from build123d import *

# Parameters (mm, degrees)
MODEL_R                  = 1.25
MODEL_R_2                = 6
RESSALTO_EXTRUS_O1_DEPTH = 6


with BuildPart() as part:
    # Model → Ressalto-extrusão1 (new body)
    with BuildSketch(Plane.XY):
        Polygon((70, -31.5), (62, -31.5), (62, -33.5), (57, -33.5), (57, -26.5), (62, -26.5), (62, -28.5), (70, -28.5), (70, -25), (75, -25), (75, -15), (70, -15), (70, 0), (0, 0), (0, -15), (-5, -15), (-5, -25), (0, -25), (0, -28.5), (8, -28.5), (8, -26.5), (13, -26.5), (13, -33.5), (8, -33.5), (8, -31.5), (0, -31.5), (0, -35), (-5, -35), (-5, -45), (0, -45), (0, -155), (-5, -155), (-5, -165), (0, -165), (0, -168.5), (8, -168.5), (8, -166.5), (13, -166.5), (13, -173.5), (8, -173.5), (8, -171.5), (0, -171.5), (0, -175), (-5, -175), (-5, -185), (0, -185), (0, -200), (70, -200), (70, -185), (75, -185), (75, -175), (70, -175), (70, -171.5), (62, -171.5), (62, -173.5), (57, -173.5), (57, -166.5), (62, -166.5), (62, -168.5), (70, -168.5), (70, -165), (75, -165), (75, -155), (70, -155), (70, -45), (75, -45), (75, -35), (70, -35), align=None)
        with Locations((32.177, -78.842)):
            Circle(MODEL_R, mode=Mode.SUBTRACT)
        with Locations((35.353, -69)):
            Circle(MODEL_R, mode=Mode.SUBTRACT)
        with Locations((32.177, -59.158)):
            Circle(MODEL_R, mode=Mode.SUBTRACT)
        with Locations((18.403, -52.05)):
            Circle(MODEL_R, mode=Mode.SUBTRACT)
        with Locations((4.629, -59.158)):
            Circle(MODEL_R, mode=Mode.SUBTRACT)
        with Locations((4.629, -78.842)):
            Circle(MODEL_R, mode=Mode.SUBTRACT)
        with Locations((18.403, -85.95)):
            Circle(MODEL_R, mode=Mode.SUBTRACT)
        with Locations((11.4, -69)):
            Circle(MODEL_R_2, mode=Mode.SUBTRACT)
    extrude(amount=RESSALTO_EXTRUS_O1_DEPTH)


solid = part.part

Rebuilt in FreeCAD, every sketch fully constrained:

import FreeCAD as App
import Part
import Sketcher
from FreeCAD import Vector
Q = App.Units.Quantity

doc = App.newDocument("Part")
body = doc.addObject("PartDesign::Body", "Body")

sketch1 = doc.addObject("Sketcher::SketchObject", "Sketch")
body.addObject(sketch1)
sketch1.AttachmentSupport = (doc.XY_Plane, [""])
sketch1.MapMode = "FlatFace"
sketch1.addGeometry(Part.LineSegment(Vector(70, -31.5, 0), Vector(62, -31.5, 0)), False)
sketch1.addGeometry(Part.LineSegment(Vector(62, -31.5, 0), Vector(62, -33.5, 0)), False)
sketch1.addGeometry(Part.LineSegment(Vector(62, -33.5, 0), Vector(57, -33.5, 0)), False)
sketch1.addGeometry(Part.LineSegment(Vector(57, -33.5, 0), Vector(57, -26.5, 0)), False)
sketch1.addGeometry(Part.LineSegment(Vector(57, -26.5, 0), Vector(62, -26.5, 0)), False)
sketch1.addGeometry(Part.LineSegment(Vector(62, -26.5, 0), Vector(62, -28.5, 0)), False)
sketch1.addGeometry(Part.LineSegment(Vector(62, -28.5, 0), Vector(70, -28.5, 0)), False)
sketch1.addGeometry(Part.LineSegment(Vector(70, -28.5, 0), Vector(70, -25, 0)), False)
sketch1.addGeometry(Part.LineSegment(Vector(70, -25, 0), Vector(75, -25, 0)), False)
sketch1.addGeometry(Part.LineSegment(Vector(75, -25, 0), Vector(75, -15, 0)), False)
sketch1.addGeometry(Part.LineSegment(Vector(75, -15, 0), Vector(70, -15, 0)), False)
sketch1.addGeometry(Part.LineSegment(Vector(70, -15, 0), Vector(70, 0, 0)), False)
sketch1.addGeometry(Part.LineSegment(Vector(70, 0, 0), Vector(0, 0, 0)), False)
sketch1.addGeometry(Part.LineSegment(Vector(0, 0, 0), Vector(0, -15, 0)), False)
sketch1.addGeometry(Part.LineSegment(Vector(0, -15, 0), Vector(-5, -15, 0)), False)
sketch1.addGeometry(Part.LineSegment(Vector(-5, -15, 0), Vector(-5, -25, 0)), False)
sketch1.addGeometry(Part.LineSegment(Vector(-5, -25, 0), Vector(0, -25, 0)), False)
sketch1.addGeometry(Part.LineSegment(Vector(0, -25, 0), Vector(0, -28.5, 0)), False)
sketch1.addGeometry(Part.LineSegment(Vector(0, -28.5, 0), Vector(8, -28.5, 0)), False)
sketch1.addGeometry(Part.LineSegment(Vector(8, -28.5, 0), Vector(8, -26.5, 0)), False)
sketch1.addGeometry(Part.LineSegment(Vector(8, -26.5, 0), Vector(13, -26.5, 0)), False)
sketch1.addGeometry(Part.LineSegment(Vector(13, -26.5, 0), Vector(13, -33.5, 0)), False)
sketch1.addGeometry(Part.LineSegment(Vector(13, -33.5, 0), Vector(8, -33.5, 0)), False)
sketch1.addGeometry(Part.LineSegment(Vector(8, -33.5, 0), Vector(8, -31.5, 0)), False)
sketch1.addGeometry(Part.LineSegment(Vector(8, -31.5, 0), Vector(0, -31.5, 0)), False)
sketch1.addGeometry(Part.LineSegment(Vector(0, -31.5, 0), Vector(0, -35, 0)), False)
sketch1.addGeometry(Part.LineSegment(Vector(0, -35, 0), Vector(-5, -35, 0)), False)
sketch1.addGeometry(Part.LineSegment(Vector(-5, -35, 0), Vector(-5, -45, 0)), False)
sketch1.addGeometry(Part.LineSegment(Vector(-5, -45, 0), Vector(0, -45, 0)), False)
sketch1.addGeometry(Part.LineSegment(Vector(0, -45, 0), Vector(0, -155, 0)), False)
sketch1.addGeometry(Part.LineSegment(Vector(0, -155, 0), Vector(-5, -155, 0)), False)
sketch1.addGeometry(Part.LineSegment(Vector(-5, -155, 0), Vector(-5, -165, 0)), False)
sketch1.addGeometry(Part.LineSegment(Vector(-5, -165, 0), Vector(0, -165, 0)), False)
sketch1.addGeometry(Part.LineSegment(Vector(0, -165, 0), Vector(0, -168.5, 0)), False)
sketch1.addGeometry(Part.LineSegment(Vector(0, -168.5, 0), Vector(8, -168.5, 0)), False)
sketch1.addGeometry(Part.LineSegment(Vector(8, -168.5, 0), Vector(8, -166.5, 0)), False)
sketch1.addGeometry(Part.LineSegment(Vector(8, -166.5, 0), Vector(13, -166.5, 0)), False)
sketch1.addGeometry(Part.LineSegment(Vector(13, -166.5, 0), Vector(13, -173.5, 0)), False)
sketch1.addGeometry(Part.LineSegment(Vector(13, -173.5, 0), Vector(8, -173.5, 0)), False)
sketch1.addGeometry(Part.LineSegment(Vector(8, -173.5, 0), Vector(8, -171.5, 0)), False)
sketch1.addGeometry(Part.LineSegment(Vector(8, -171.5, 0), Vector(0, -171.5, 0)), False)
sketch1.addGeometry(Part.LineSegment(Vector(0, -171.5, 0), Vector(0, -175, 0)), False)
sketch1.addGeometry(Part.LineSegment(Vector(0, -175, 0), Vector(-5, -175, 0)), False)
sketch1.addGeometry(Part.LineSegment(Vector(-5, -175, 0), Vector(-5, -185, 0)), False)
sketch1.addGeometry(Part.LineSegment(Vector(-5, -185, 0), Vector(0, -185, 0)), False)
sketch1.addGeometry(Part.LineSegment(Vector(0, -185, 0), Vector(0, -200, 0)), False)
sketch1.addGeometry(Part.LineSegment(Vector(0, -200, 0), Vector(70, -200, 0)), False)
sketch1.addGeometry(Part.LineSegment(Vector(70, -200, 0), Vector(70, -185, 0)), False)
sketch1.addGeometry(Part.LineSegment(Vector(70, -185, 0), Vector(75, -185, 0)), False)
sketch1.addGeometry(Part.LineSegment(Vector(75, -185, 0), Vector(75, -175, 0)), False)
sketch1.addGeometry(Part.LineSegment(Vector(75, -175, 0), Vector(70, -175, 0)), False)
sketch1.addGeometry(Part.LineSegment(Vector(70, -175, 0), Vector(70, -171.5, 0)), False)
sketch1.addGeometry(Part.LineSegment(Vector(70, -171.5, 0), Vector(62, -171.5, 0)), False)
sketch1.addGeometry(Part.LineSegment(Vector(62, -171.5, 0), Vector(62, -173.5, 0)), False)
sketch1.addGeometry(Part.LineSegment(Vector(62, -173.5, 0), Vector(57, -173.5, 0)), False)
sketch1.addGeometry(Part.LineSegment(Vector(57, -173.5, 0), Vector(57, -166.5, 0)), False)
sketch1.addGeometry(Part.LineSegment(Vector(57, -166.5, 0), Vector(62, -166.5, 0)), False)
sketch1.addGeometry(Part.LineSegment(Vector(62, -166.5, 0), Vector(62, -168.5, 0)), False)
sketch1.addGeometry(Part.LineSegment(Vector(62, -168.5, 0), Vector(70, -168.5, 0)), False)
sketch1.addGeometry(Part.LineSegment(Vector(70, -168.5, 0), Vector(70, -165, 0)), False)
sketch1.addGeometry(Part.LineSegment(Vector(70, -165, 0), Vector(75, -165, 0)), False)
sketch1.addGeometry(Part.LineSegment(Vector(75, -165, 0), Vector(75, -155, 0)), False)
sketch1.addGeometry(Part.LineSegment(Vector(75, -155, 0), Vector(70, -155, 0)), False)
sketch1.addGeometry(Part.LineSegment(Vector(70, -155, 0), Vector(70, -45, 0)), False)
sketch1.addGeometry(Part.LineSegment(Vector(70, -45, 0), Vector(75, -45, 0)), False)
sketch1.addGeometry(Part.LineSegment(Vector(75, -45, 0), Vector(75, -35, 0)), False)
sketch1.addGeometry(Part.LineSegment(Vector(75, -35, 0), Vector(70, -35, 0)), False)
sketch1.addGeometry(Part.LineSegment(Vector(70, -35, 0), Vector(70, -31.5, 0)), False)
sketch1.addGeometry(Part.Circle(Vector(4.6, -78.8, 0), Vector(0, 0, 1), 1.2), False)
sketch1.addGeometry(Part.Circle(Vector(18.4, -86, 0), Vector(0, 0, 1), 1.2), False)
sketch1.addGeometry(Part.Circle(Vector(32.2, -78.8, 0), Vector(0, 0, 1), 1.2), False)
sketch1.addGeometry(Part.Circle(Vector(11.4, -69, 0), Vector(0, 0, 1), 6), False)
sketch1.addGeometry(Part.Circle(Vector(4.6, -59.2, 0), Vector(0, 0, 1), 1.2), False)
sketch1.addGeometry(Part.Circle(Vector(18.4, -52, 0), Vector(0, 0, 1), 1.2), False)
sketch1.addGeometry(Part.Circle(Vector(35.4, -69, 0), Vector(0, 0, 1), 1.2), False)
sketch1.addGeometry(Part.Circle(Vector(32.2, -59.2, 0), Vector(0, 0, 1), 1.2), False)
sketch1.addConstraint(Sketcher.Constraint("Coincident", 0, 2, 1, 1))
sketch1.addConstraint(Sketcher.Constraint("Coincident", 1, 2, 2, 1))
sketch1.addConstraint(Sketcher.Constraint("Coincident", 2, 2, 3, 1))
sketch1.addConstraint(Sketcher.Constraint("Coincident", 3, 2, 4, 1))
sketch1.addConstraint(Sketcher.Constraint("Coincident", 4, 2, 5, 1))
sketch1.addConstraint(Sketcher.Constraint("Coincident", 5, 2, 6, 1))
sketch1.addConstraint(Sketcher.Constraint("Coincident", 6, 2, 7, 1))
sketch1.addConstraint(Sketcher.Constraint("Coincident", 7, 2, 8, 1))
sketch1.addConstraint(Sketcher.Constraint("Coincident", 8, 2, 9, 1))
sketch1.addConstraint(Sketcher.Constraint("Coincident", 9, 2, 10, 1))
sketch1.addConstraint(Sketcher.Constraint("Coincident", 10, 2, 11, 1))
sketch1.addConstraint(Sketcher.Constraint("Coincident", 11, 2, 12, 1))
sketch1.addConstraint(Sketcher.Constraint("Coincident", 12, 2, 13, 1))
sketch1.addConstraint(Sketcher.Constraint("Coincident", 13, 2, 14, 1))
sketch1.addConstraint(Sketcher.Constraint("Coincident", 14, 2, 15, 1))
sketch1.addConstraint(Sketcher.Constraint("Coincident", 15, 2, 16, 1))
sketch1.addConstraint(Sketcher.Constraint("Coincident", 16, 2, 17, 1))
sketch1.addConstraint(Sketcher.Constraint("Coincident", 17, 2, 18, 1))
sketch1.addConstraint(Sketcher.Constraint("Coincident", 18, 2, 19, 1))
sketch1.addConstraint(Sketcher.Constraint("Coincident", 19, 2, 20, 1))
sketch1.addConstraint(Sketcher.Constraint("Coincident", 20, 2, 21, 1))
sketch1.addConstraint(Sketcher.Constraint("Coincident", 21, 2, 22, 1))
sketch1.addConstraint(Sketcher.Constraint("Coincident", 22, 2, 23, 1))
sketch1.addConstraint(Sketcher.Constraint("Coincident", 23, 2, 24, 1))
sketch1.addConstraint(Sketcher.Constraint("Coincident", 24, 2, 25, 1))
sketch1.addConstraint(Sketcher.Constraint("Coincident", 25, 2, 26, 1))
sketch1.addConstraint(Sketcher.Constraint("Coincident", 26, 2, 27, 1))
sketch1.addConstraint(Sketcher.Constraint("Coincident", 27, 2, 28, 1))
sketch1.addConstraint(Sketcher.Constraint("Coincident", 28, 2, 29, 1))
sketch1.addConstraint(Sketcher.Constraint("Coincident", 29, 2, 30, 1))
sketch1.addConstraint(Sketcher.Constraint("Coincident", 30, 2, 31, 1))
sketch1.addConstraint(Sketcher.Constraint("Coincident", 31, 2, 32, 1))
sketch1.addConstraint(Sketcher.Constraint("Coincident", 32, 2, 33, 1))
sketch1.addConstraint(Sketcher.Constraint("Coincident", 33, 2, 34, 1))
sketch1.addConstraint(Sketcher.Constraint("Coincident", 34, 2, 35, 1))
sketch1.addConstraint(Sketcher.Constraint("Coincident", 35, 2, 36, 1))
sketch1.addConstraint(Sketcher.Constraint("Coincident", 36, 2, 37, 1))
sketch1.addConstraint(Sketcher.Constraint("Coincident", 37, 2, 38, 1))
sketch1.addConstraint(Sketcher.Constraint("Coincident", 38, 2, 39, 1))
sketch1.addConstraint(Sketcher.Constraint("Coincident", 39, 2, 40, 1))
sketch1.addConstraint(Sketcher.Constraint("Coincident", 40, 2, 41, 1))
sketch1.addConstraint(Sketcher.Constraint("Coincident", 41, 2, 42, 1))
sketch1.addConstraint(Sketcher.Constraint("Coincident", 42, 2, 43, 1))
sketch1.addConstraint(Sketcher.Constraint("Coincident", 43, 2, 44, 1))
sketch1.addConstraint(Sketcher.Constraint("Coincident", 44, 2, 45, 1))
sketch1.addConstraint(Sketcher.Constraint("Coincident", 45, 2, 46, 1))
sketch1.addConstraint(Sketcher.Constraint("Coincident", 46, 2, 47, 1))
sketch1.addConstraint(Sketcher.Constraint("Coincident", 47, 2, 48, 1))
sketch1.addConstraint(Sketcher.Constraint("Coincident", 48, 2, 49, 1))
sketch1.addConstraint(Sketcher.Constraint("Coincident", 49, 2, 50, 1))
sketch1.addConstraint(Sketcher.Constraint("Coincident", 50, 2, 51, 1))
sketch1.addConstraint(Sketcher.Constraint("Coincident", 51, 2, 52, 1))
sketch1.addConstraint(Sketcher.Constraint("Coincident", 52, 2, 53, 1))
sketch1.addConstraint(Sketcher.Constraint("Coincident", 53, 2, 54, 1))
sketch1.addConstraint(Sketcher.Constraint("Coincident", 54, 2, 55, 1))
sketch1.addConstraint(Sketcher.Constraint("Coincident", 55, 2, 56, 1))
sketch1.addConstraint(Sketcher.Constraint("Coincident", 56, 2, 57, 1))
sketch1.addConstraint(Sketcher.Constraint("Coincident", 57, 2, 58, 1))
sketch1.addConstraint(Sketcher.Constraint("Coincident", 58, 2, 59, 1))
sketch1.addConstraint(Sketcher.Constraint("Coincident", 59, 2, 60, 1))
sketch1.addConstraint(Sketcher.Constraint("Coincident", 60, 2, 61, 1))
sketch1.addConstraint(Sketcher.Constraint("Coincident", 61, 2, 62, 1))
sketch1.addConstraint(Sketcher.Constraint("Coincident", 62, 2, 63, 1))
sketch1.addConstraint(Sketcher.Constraint("Coincident", 63, 2, 64, 1))
sketch1.addConstraint(Sketcher.Constraint("Coincident", 64, 2, 65, 1))
sketch1.addConstraint(Sketcher.Constraint("Coincident", 65, 2, 66, 1))
sketch1.addConstraint(Sketcher.Constraint("Coincident", 66, 2, 67, 1))
sketch1.addConstraint(Sketcher.Constraint("Coincident", 67, 2, 0, 1))
sketch1.addConstraint(Sketcher.Constraint("Horizontal", 0))
sketch1.addConstraint(Sketcher.Constraint("Vertical", 1))
sketch1.addConstraint(Sketcher.Constraint("Horizontal", 2))
sketch1.addConstraint(Sketcher.Constraint("Vertical", 3))
sketch1.addConstraint(Sketcher.Constraint("Horizontal", 4))
sketch1.addConstraint(Sketcher.Constraint("Vertical", 5))
sketch1.addConstraint(Sketcher.Constraint("Horizontal", 6))
sketch1.addConstraint(Sketcher.Constraint("Vertical", 7))
sketch1.addConstraint(Sketcher.Constraint("Horizontal", 8))
sketch1.addConstraint(Sketcher.Constraint("Vertical", 9))
sketch1.addConstraint(Sketcher.Constraint("Horizontal", 10))
sketch1.addConstraint(Sketcher.Constraint("Vertical", 11))
sketch1.addConstraint(Sketcher.Constraint("Horizontal", 12))
sketch1.addConstraint(Sketcher.Constraint("Vertical", 13))
sketch1.addConstraint(Sketcher.Constraint("Horizontal", 14))
sketch1.addConstraint(Sketcher.Constraint("Vertical", 15))
sketch1.addConstraint(Sketcher.Constraint("Horizontal", 16))
sketch1.addConstraint(Sketcher.Constraint("Vertical", 17))
sketch1.addConstraint(Sketcher.Constraint("Horizontal", 18))
sketch1.addConstraint(Sketcher.Constraint("Vertical", 19))
sketch1.addConstraint(Sketcher.Constraint("Horizontal", 20))
sketch1.addConstraint(Sketcher.Constraint("Vertical", 21))
sketch1.addConstraint(Sketcher.Constraint("Horizontal", 22))
sketch1.addConstraint(Sketcher.Constraint("Vertical", 23))
sketch1.addConstraint(Sketcher.Constraint("Horizontal", 24))
sketch1.addConstraint(Sketcher.Constraint("Vertical", 25))
sketch1.addConstraint(Sketcher.Constraint("Horizontal", 26))
sketch1.addConstraint(Sketcher.Constraint("Vertical", 27))
sketch1.addConstraint(Sketcher.Constraint("Horizontal", 28))
sketch1.addConstraint(Sketcher.Constraint("Vertical", 29))
sketch1.addConstraint(Sketcher.Constraint("Horizontal", 30))
sketch1.addConstraint(Sketcher.Constraint("Vertical", 31))
sketch1.addConstraint(Sketcher.Constraint("Horizontal", 32))
sketch1.addConstraint(Sketcher.Constraint("Vertical", 33))
sketch1.addConstraint(Sketcher.Constraint("Horizontal", 34))
sketch1.addConstraint(Sketcher.Constraint("Vertical", 35))
sketch1.addConstraint(Sketcher.Constraint("Horizontal", 36))
sketch1.addConstraint(Sketcher.Constraint("Vertical", 37))
sketch1.addConstraint(Sketcher.Constraint("Horizontal", 38))
sketch1.addConstraint(Sketcher.Constraint("Vertical", 39))
sketch1.addConstraint(Sketcher.Constraint("Horizontal", 40))
sketch1.addConstraint(Sketcher.Constraint("Vertical", 41))
sketch1.addConstraint(Sketcher.Constraint("Horizontal", 42))
sketch1.addConstraint(Sketcher.Constraint("Vertical", 43))
sketch1.addConstraint(Sketcher.Constraint("Horizontal", 44))
sketch1.addConstraint(Sketcher.Constraint("Vertical", 45))
sketch1.addConstraint(Sketcher.Constraint("Horizontal", 46))
sketch1.addConstraint(Sketcher.Constraint("Vertical", 47))
sketch1.addConstraint(Sketcher.Constraint("Horizontal", 48))
sketch1.addConstraint(Sketcher.Constraint("Vertical", 49))
sketch1.addConstraint(Sketcher.Constraint("Horizontal", 50))
sketch1.addConstraint(Sketcher.Constraint("Vertical", 51))
sketch1.addConstraint(Sketcher.Constraint("Horizontal", 52))
sketch1.addConstraint(Sketcher.Constraint("Vertical", 53))
sketch1.addConstraint(Sketcher.Constraint("Horizontal", 54))
sketch1.addConstraint(Sketcher.Constraint("Vertical", 55))
sketch1.addConstraint(Sketcher.Constraint("Horizontal", 56))
sketch1.addConstraint(Sketcher.Constraint("Vertical", 57))
sketch1.addConstraint(Sketcher.Constraint("Horizontal", 58))
sketch1.addConstraint(Sketcher.Constraint("Vertical", 59))
sketch1.addConstraint(Sketcher.Constraint("Horizontal", 60))
sketch1.addConstraint(Sketcher.Constraint("Vertical", 61))
sketch1.addConstraint(Sketcher.Constraint("Horizontal", 62))
sketch1.addConstraint(Sketcher.Constraint("Vertical", 63))
sketch1.addConstraint(Sketcher.Constraint("Horizontal", 64))
sketch1.addConstraint(Sketcher.Constraint("Vertical", 65))
sketch1.addConstraint(Sketcher.Constraint("Horizontal", 66))
sketch1.addConstraint(Sketcher.Constraint("Vertical", 67))
sketch1.addConstraint(Sketcher.Constraint("Coincident", 12, 2, -1, 1))
sketch1.addConstraint(Sketcher.Constraint("Equal", 68, 69))
sketch1.addConstraint(Sketcher.Constraint("Equal", 69, 70))
sketch1.addConstraint(Sketcher.Constraint("Equal", 70, 72))
sketch1.addConstraint(Sketcher.Constraint("Equal", 72, 73))
sketch1.addConstraint(Sketcher.Constraint("Equal", 73, 74))
sketch1.addConstraint(Sketcher.Constraint("Equal", 74, 75))
sketch1.addConstraint(Sketcher.Constraint("PointOnObject", 16, 2, -2))
sketch1.addConstraint(Sketcher.Constraint("PointOnObject", 24, 2, -2))
sketch1.addConstraint(Sketcher.Constraint("PointOnObject", 28, 2, -2))
sketch1.addConstraint(Sketcher.Constraint("PointOnObject", 32, 2, -2))
sketch1.addConstraint(Sketcher.Constraint("PointOnObject", 40, 2, -2))
sketch1.addConstraint(Sketcher.Constraint("PointOnObject", 44, 2, -2))
sketch1.addConstraint(Sketcher.Constraint("Horizontal", 68, 3, 70, 3))
sketch1.addConstraint(Sketcher.Constraint("Horizontal", 71, 3, 74, 3))
sketch1.addConstraint(Sketcher.Constraint("Horizontal", 72, 3, 75, 3))
sketch1.addConstraint(Sketcher.Constraint("Horizontal", 10, 2, 13, 2))
sketch1.addConstraint(Sketcher.Constraint("Horizontal", 8, 2, 15, 2))
sketch1.addConstraint(Sketcher.Constraint("Horizontal", 6, 2, 17, 2))
sketch1.addConstraint(Sketcher.Constraint("Horizontal", 4, 2, 19, 2))
sketch1.addConstraint(Sketcher.Constraint("Horizontal", 2, 2, 21, 2))
sketch1.addConstraint(Sketcher.Constraint("Horizontal", 0, 2, 23, 2))
sketch1.addConstraint(Sketcher.Constraint("Horizontal", 44, 2, 47, 2))
sketch1.addConstraint(Sketcher.Constraint("Horizontal", 42, 2, 49, 2))
sketch1.addConstraint(Sketcher.Constraint("Horizontal", 40, 2, 51, 2))
sketch1.addConstraint(Sketcher.Constraint("Horizontal", 38, 2, 53, 2))
sketch1.addConstraint(Sketcher.Constraint("Horizontal", 36, 2, 55, 2))
sketch1.addConstraint(Sketcher.Constraint("Horizontal", 34, 2, 57, 2))
sketch1.addConstraint(Sketcher.Constraint("Horizontal", 32, 2, 59, 2))
sketch1.addConstraint(Sketcher.Constraint("Horizontal", 30, 2, 61, 2))
sketch1.addConstraint(Sketcher.Constraint("Horizontal", 28, 2, 63, 2))
sketch1.addConstraint(Sketcher.Constraint("Horizontal", 26, 2, 65, 2))
sketch1.addConstraint(Sketcher.Constraint("Vertical", 68, 3, 72, 3))
sketch1.addConstraint(Sketcher.Constraint("Vertical", 69, 3, 73, 3))
sketch1.addConstraint(Sketcher.Constraint("Vertical", 70, 3, 75, 3))
sketch1.addConstraint(Sketcher.Constraint("Vertical", 1, 2, 4, 2))
sketch1.addConstraint(Sketcher.Constraint("Vertical", 7, 2, 10, 2))
sketch1.addConstraint(Sketcher.Constraint("Vertical", 19, 2, 22, 2))
sketch1.addConstraint(Sketcher.Constraint("Vertical", 15, 2, 26, 2))
sketch1.addConstraint(Sketcher.Constraint("Vertical", 27, 2, 30, 2))
sketch1.addConstraint(Sketcher.Constraint("Vertical", 23, 2, 34, 2))
sketch1.addConstraint(Sketcher.Constraint("Vertical", 21, 2, 36, 2))
sketch1.addConstraint(Sketcher.Constraint("Vertical", 35, 2, 38, 2))
sketch1.addConstraint(Sketcher.Constraint("Vertical", 31, 2, 42, 2))
sketch1.addConstraint(Sketcher.Constraint("Vertical", 11, 2, 46, 2))
sketch1.addConstraint(Sketcher.Constraint("Vertical", 9, 2, 48, 2))
sketch1.addConstraint(Sketcher.Constraint("Vertical", 47, 2, 50, 2))
sketch1.addConstraint(Sketcher.Constraint("Vertical", 5, 2, 52, 2))
sketch1.addConstraint(Sketcher.Constraint("Vertical", 3, 2, 54, 2))
sketch1.addConstraint(Sketcher.Constraint("Vertical", 53, 2, 56, 2))
sketch1.addConstraint(Sketcher.Constraint("Vertical", 51, 2, 58, 2))
sketch1.addConstraint(Sketcher.Constraint("Vertical", 49, 2, 60, 2))
sketch1.addConstraint(Sketcher.Constraint("Vertical", 59, 2, 62, 2))
sketch1.addConstraint(Sketcher.Constraint("Vertical", 61, 2, 64, 2))
sketch1.addConstraint(Sketcher.Constraint("Vertical", 63, 2, 66, 2))
sketch1.addConstraint(Sketcher.Constraint("Equal", 4, 8))
sketch1.addConstraint(Sketcher.Constraint("Equal", 10, 14))
sketch1.addConstraint(Sketcher.Constraint("Equal", 6, 18))
sketch1.addConstraint(Sketcher.Constraint("Equal", 16, 20))
sketch1.addConstraint(Sketcher.Constraint("Equal", 1, 5))
sketch1.addConstraint(Sketcher.Constraint("Equal", 17, 25))
sketch1.addConstraint(Sketcher.Constraint("Equal", 15, 27))
sketch1.addConstraint(Sketcher.Constraint("Equal", 27, 31))
sketch1.addConstraint(Sketcher.Constraint("Equal", 25, 33))
sketch1.addConstraint(Sketcher.Constraint("Equal", 23, 35))
sketch1.addConstraint(Sketcher.Constraint("Equal", 21, 37))
sketch1.addConstraint(Sketcher.Constraint("Equal", 35, 39))
sketch1.addConstraint(Sketcher.Constraint("Equal", 33, 41))
sketch1.addConstraint(Sketcher.Constraint("Equal", 31, 43))
sketch1.addConstraint(Sketcher.Constraint("Equal", 13, 45))
sketch1.addConstraint(Sketcher.Constraint("Diameter", 71, Q("12 mm")))
sketch1.addConstraint(Sketcher.Constraint("Diameter", 68, Q("2.5 mm")))
sketch1.addConstraint(Sketcher.Constraint("DistanceX", 0, 2, 0, 1, Q("8 mm")))
sketch1.addConstraint(Sketcher.Constraint("DistanceX", 2, 2, 2, 1, Q("5 mm")))
sketch1.addConstraint(Sketcher.Constraint("DistanceX", 12, 2, 12, 1, Q("70 mm")))
sketch1.addConstraint(Sketcher.Constraint("DistanceY", 1, 2, 1, 1, Q("2 mm")))
sketch1.addConstraint(Sketcher.Constraint("DistanceY", 3, 1, 3, 2, Q("7 mm")))
sketch1.addConstraint(Sketcher.Constraint("DistanceY", 9, 1, 9, 2, Q("10 mm")))
sketch1.addConstraint(Sketcher.Constraint("DistanceY", 11, 1, 11, 2, Q("15 mm")))
sketch1.addConstraint(Sketcher.Constraint("DistanceY", 29, 2, 29, 1, Q("110 mm")))
sketch1.addConstraint(Sketcher.Constraint("DistanceY", 7, 1, 7, 2, Q("3.5 mm")))
sketch1.addConstraint(Sketcher.Constraint("DistanceY", 71, 3, -1, 1, Q("69 mm")))
sketch1.addConstraint(Sketcher.Constraint("DistanceX", -1, 1, 71, 3, Q("11.4 mm")))
sketch1.addConstraint(Sketcher.Constraint("DistanceY", 69, 3, -1, 1, Q("85.95 mm")))
sketch1.addConstraint(Sketcher.Constraint("DistanceY", 73, 3, -1, 1, Q("52.05 mm")))
sketch1.addConstraint(Sketcher.Constraint("DistanceX", -1, 1, 68, 3, Q("4.629 mm")))
sketch1.addConstraint(Sketcher.Constraint("DistanceY", 68, 3, -1, 1, Q("78.842 mm")))
sketch1.addConstraint(Sketcher.Constraint("DistanceX", -1, 1, 69, 3, Q("18.403 mm")))
sketch1.addConstraint(Sketcher.Constraint("DistanceX", -1, 1, 70, 3, Q("32.177 mm")))
sketch1.addConstraint(Sketcher.Constraint("DistanceY", 72, 3, -1, 1, Q("59.158 mm")))
sketch1.addConstraint(Sketcher.Constraint("DistanceX", -1, 1, 74, 3, Q("35.353 mm")))
pad1 = doc.addObject("PartDesign::Pad", "Pad")
body.addObject(pad1)
pad1.Profile = sketch1
pad1.Length = 6

doc.recompute()
